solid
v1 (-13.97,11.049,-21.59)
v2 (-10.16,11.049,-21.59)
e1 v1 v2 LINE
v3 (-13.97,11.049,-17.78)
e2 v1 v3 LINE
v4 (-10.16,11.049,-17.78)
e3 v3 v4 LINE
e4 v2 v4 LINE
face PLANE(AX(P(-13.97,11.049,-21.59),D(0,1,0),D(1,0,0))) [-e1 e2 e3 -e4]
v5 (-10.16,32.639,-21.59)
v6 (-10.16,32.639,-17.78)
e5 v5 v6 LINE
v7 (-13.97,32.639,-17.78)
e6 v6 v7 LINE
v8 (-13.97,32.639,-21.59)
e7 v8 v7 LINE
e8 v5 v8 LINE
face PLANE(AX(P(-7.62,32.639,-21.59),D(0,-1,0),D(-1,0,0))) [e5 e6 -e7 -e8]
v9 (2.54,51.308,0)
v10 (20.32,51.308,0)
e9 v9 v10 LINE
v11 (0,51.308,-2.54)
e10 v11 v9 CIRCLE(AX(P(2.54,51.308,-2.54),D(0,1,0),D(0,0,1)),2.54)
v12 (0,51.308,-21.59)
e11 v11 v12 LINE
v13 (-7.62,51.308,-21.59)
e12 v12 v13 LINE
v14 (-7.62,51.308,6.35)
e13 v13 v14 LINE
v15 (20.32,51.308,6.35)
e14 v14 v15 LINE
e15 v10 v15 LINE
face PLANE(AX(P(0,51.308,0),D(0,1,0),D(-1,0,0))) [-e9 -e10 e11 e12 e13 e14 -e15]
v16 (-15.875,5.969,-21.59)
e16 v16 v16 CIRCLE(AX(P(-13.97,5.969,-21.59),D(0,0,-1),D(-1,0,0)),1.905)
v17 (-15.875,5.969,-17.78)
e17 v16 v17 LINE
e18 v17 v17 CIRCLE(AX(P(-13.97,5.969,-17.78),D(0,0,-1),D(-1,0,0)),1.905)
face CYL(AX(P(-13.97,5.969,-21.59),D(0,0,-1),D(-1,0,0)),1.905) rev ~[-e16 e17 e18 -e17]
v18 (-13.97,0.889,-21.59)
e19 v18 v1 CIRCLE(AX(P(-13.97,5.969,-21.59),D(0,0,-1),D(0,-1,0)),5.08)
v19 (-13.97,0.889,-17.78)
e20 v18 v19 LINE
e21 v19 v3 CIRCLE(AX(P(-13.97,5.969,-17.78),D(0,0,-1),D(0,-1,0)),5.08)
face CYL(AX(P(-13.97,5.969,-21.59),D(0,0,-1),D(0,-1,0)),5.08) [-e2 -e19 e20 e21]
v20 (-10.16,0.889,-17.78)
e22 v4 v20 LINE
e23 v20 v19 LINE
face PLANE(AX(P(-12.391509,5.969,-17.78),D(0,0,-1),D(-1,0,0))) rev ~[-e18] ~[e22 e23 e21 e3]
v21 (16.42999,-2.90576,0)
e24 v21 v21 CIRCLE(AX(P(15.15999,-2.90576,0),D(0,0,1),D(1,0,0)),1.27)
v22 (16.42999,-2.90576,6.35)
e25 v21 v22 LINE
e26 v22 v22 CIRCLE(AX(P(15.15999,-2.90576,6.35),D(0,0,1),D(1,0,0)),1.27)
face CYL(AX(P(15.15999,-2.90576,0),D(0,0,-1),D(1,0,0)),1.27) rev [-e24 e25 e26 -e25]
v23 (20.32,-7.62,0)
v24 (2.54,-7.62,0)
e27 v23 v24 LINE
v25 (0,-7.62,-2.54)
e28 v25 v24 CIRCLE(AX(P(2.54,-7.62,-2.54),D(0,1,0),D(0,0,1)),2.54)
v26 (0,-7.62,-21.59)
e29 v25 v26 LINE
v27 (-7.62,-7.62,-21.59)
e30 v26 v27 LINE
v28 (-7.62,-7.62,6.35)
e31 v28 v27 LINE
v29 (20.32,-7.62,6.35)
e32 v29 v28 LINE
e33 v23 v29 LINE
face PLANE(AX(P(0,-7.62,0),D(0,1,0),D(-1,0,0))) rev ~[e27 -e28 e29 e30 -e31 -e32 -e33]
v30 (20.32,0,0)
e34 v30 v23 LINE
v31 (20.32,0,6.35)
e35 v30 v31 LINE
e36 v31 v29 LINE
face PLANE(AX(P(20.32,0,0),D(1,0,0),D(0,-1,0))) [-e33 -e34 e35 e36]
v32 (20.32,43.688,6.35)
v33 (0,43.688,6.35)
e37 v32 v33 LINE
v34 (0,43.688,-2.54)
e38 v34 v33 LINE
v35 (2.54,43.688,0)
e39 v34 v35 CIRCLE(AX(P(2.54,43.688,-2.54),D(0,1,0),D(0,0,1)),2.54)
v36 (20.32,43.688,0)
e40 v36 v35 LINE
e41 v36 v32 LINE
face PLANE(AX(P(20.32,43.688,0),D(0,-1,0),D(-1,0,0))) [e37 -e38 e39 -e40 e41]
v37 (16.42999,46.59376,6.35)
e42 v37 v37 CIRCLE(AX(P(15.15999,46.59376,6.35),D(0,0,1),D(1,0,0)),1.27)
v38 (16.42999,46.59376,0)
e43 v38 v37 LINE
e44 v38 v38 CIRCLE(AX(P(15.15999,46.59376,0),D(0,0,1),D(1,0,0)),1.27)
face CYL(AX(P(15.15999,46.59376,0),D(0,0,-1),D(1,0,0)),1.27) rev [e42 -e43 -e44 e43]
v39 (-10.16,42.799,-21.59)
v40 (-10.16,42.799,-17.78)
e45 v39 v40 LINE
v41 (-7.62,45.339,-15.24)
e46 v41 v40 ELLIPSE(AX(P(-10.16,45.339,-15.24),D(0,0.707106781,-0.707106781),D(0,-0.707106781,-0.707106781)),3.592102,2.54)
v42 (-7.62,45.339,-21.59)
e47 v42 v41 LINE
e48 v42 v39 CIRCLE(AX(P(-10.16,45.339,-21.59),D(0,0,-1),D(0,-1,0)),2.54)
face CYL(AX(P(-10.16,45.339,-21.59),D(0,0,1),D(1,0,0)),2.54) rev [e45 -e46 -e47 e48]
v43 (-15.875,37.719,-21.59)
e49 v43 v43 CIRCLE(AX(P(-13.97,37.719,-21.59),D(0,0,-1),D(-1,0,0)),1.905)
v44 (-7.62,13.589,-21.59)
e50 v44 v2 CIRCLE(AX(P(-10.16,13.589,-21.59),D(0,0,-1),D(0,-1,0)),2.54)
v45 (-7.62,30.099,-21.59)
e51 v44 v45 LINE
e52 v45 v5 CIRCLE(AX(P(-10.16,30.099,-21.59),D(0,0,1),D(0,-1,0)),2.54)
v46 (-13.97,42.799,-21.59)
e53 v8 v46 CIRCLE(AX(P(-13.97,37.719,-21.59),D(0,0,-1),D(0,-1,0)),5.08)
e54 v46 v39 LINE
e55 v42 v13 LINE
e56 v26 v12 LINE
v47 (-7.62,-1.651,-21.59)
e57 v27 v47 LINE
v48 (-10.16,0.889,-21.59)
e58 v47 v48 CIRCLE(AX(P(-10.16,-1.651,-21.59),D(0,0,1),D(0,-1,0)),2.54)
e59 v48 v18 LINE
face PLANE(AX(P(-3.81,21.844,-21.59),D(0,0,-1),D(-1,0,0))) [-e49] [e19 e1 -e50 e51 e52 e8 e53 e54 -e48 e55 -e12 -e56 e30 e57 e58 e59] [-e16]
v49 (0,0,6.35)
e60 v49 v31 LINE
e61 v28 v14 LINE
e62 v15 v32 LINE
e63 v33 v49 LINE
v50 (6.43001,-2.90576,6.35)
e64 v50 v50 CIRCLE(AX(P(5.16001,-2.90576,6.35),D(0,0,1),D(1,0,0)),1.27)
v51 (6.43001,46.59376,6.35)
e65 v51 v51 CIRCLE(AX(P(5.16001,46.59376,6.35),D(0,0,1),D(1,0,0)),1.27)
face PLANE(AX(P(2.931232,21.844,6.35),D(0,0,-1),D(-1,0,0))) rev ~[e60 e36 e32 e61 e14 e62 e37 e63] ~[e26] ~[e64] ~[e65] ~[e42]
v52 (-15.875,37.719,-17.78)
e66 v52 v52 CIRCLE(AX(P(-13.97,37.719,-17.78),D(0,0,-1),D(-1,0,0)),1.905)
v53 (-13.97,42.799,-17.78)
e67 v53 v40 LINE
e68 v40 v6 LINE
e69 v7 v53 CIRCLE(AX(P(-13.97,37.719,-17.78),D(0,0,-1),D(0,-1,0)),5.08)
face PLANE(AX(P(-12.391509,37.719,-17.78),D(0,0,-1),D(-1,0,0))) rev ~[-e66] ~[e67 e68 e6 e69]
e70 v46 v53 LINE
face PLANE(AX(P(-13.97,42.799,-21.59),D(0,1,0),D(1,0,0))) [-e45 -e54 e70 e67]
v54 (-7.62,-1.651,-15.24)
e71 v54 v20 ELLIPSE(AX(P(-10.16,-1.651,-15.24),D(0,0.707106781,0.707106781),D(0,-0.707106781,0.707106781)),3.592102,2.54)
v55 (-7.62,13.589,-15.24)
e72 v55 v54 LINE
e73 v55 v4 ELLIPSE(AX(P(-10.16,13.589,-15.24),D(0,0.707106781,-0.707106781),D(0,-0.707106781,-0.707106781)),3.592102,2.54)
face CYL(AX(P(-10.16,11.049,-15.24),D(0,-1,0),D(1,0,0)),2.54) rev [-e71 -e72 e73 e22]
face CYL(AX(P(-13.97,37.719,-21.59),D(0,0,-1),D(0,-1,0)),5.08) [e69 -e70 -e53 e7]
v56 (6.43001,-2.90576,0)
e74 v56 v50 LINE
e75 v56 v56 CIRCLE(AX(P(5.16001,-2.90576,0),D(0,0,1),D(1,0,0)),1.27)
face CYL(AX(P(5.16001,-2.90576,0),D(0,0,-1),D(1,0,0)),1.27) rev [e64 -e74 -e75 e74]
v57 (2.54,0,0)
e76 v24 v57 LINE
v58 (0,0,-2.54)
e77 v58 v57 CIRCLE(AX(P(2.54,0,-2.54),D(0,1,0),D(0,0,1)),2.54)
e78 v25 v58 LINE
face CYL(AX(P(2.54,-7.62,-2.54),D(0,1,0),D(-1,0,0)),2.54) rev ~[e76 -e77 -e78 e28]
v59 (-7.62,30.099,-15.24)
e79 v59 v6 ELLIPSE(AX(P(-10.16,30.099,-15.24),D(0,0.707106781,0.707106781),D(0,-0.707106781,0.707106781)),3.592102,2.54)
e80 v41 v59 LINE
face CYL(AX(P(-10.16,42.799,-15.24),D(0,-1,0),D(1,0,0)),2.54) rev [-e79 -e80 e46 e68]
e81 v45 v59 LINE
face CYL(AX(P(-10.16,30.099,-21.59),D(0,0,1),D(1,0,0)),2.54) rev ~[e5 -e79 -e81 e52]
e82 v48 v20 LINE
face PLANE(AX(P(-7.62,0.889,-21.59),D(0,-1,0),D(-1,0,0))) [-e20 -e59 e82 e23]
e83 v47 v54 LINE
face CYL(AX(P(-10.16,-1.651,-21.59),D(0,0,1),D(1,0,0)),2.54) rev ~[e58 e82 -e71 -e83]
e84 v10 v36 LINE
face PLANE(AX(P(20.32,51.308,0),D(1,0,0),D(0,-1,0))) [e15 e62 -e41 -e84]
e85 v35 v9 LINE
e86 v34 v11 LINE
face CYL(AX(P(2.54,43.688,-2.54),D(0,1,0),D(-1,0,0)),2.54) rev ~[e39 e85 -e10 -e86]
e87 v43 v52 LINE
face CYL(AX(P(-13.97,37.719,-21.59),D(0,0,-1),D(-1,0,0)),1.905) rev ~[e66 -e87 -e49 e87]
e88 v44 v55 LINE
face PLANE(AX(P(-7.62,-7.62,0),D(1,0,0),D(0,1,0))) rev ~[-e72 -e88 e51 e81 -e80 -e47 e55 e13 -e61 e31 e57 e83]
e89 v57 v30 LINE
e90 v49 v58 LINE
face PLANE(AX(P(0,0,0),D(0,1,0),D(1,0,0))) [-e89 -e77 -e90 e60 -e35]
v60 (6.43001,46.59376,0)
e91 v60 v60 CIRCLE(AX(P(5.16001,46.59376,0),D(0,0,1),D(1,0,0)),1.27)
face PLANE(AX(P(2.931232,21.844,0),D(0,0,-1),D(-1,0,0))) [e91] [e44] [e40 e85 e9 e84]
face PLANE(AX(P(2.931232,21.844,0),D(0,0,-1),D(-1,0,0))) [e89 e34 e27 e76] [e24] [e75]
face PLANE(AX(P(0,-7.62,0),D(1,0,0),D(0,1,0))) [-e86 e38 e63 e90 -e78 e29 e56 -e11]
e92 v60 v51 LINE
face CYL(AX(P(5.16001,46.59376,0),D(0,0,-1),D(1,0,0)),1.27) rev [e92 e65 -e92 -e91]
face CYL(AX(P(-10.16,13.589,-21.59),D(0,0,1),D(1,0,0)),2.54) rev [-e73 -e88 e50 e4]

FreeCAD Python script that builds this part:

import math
import FreeCAD as App
import Part
import Sketcher
Q = App.Units.Quantity


def edges_at(feature, points):
    """Names of the edges that pass closest to the given points."""
    edges = feature.Shape.Edges
    near = lambda p: min(range(len(edges)), key=lambda i: edges[i].distToShape(Part.Vertex(*p))[0])
    return sorted({f"Edge{near(p) + 1}" for p in points})


def add_polygon(sketch, points):
    """Adds a closed chain of lines whose ends are joined by coincident constraints."""
    first, n = sketch.GeometryCount, len(points)
    for a, b in zip(points, points[1:] + points[:1]):
        sketch.addGeometry(Part.LineSegment(App.Vector(*a, 0), App.Vector(*b, 0)), False)
    for i in range(n):
        sketch.addConstraint(Sketcher.Constraint("Coincident", first + i, 2, first + (i + 1) % n, 1))

doc = App.newDocument("Part")
body = doc.addObject("PartDesign::Body", "Body")

# Sketch on XY plane
sketch1 = body.newObject("Sketcher::SketchObject", "Sketch")
sketch1.AttachmentSupport = (doc.getObject("XY_Plane"), [""])
sketch1.MapMode = "FlatFace"
add_polygon(sketch1, [(20.3, 0), (0, 0), (0, 43.7), (20.3, 43.7), (20.3, 51.3), (-7.6, 51.3), (-7.6, -7.6), (20.3, -7.6)])  # lines 0-7
sketch1.addGeometry(Part.Circle(App.Vector(15.2, -2.9, 0), App.Vector(0, 0, 1), 1.3), False)  # 8
sketch1.addGeometry(Part.Circle(App.Vector(5.2, -2.9, 0), App.Vector(0, 0, 1), 1.3), False)  # 9
sketch1.addGeometry(Part.Circle(App.Vector(15.2, 46.6, 0), App.Vector(0, 0, 1), 1.3), False)  # 10
sketch1.addGeometry(Part.Circle(App.Vector(5.2, 46.6, 0), App.Vector(0, 0, 1), 1.3), False)  # 11
sketch1.addConstraint([
    Sketcher.Constraint("Horizontal", 0),
    Sketcher.Constraint("Vertical", 1),
    Sketcher.Constraint("Horizontal", 2),
    Sketcher.Constraint("Vertical", 3),
    Sketcher.Constraint("Horizontal", 4),
    Sketcher.Constraint("Vertical", 5),
    Sketcher.Constraint("Horizontal", 6),
    Sketcher.Constraint("Vertical", 7),
    Sketcher.Constraint("Coincident", 0, 2, -1, 1),
    Sketcher.Constraint("Equal", 8, 9),
    Sketcher.Constraint("Equal", 9, 10),
    Sketcher.Constraint("Equal", 10, 11),
    Sketcher.Constraint("Horizontal", 8, 3, 9, 3),
    Sketcher.Constraint("Horizontal", 10, 3, 11, 3),
    Sketcher.Constraint("Vertical", 8, 3, 10, 3),
    Sketcher.Constraint("Vertical", 9, 3, 11, 3),
    Sketcher.Constraint("Vertical", 3, 2, 6, 2),
    Sketcher.Constraint("Equal", 3, 7),
    Sketcher.Constraint("Diameter", 8, Q("0.1 in")),
    Sketcher.Constraint("DistanceX", 0, 2, 0, 1, Q("0.8 in")),
    Sketcher.Constraint("DistanceX", 4, 2, 4, 1, Q("1.1 in")),
    Sketcher.Constraint("DistanceY", 3, 1, 3, 2, Q("0.3 in")),
    Sketcher.Constraint("DistanceY", 1, 1, 1, 2, Q("1.72 in")),
    Sketcher.Constraint("DistanceY", 8, 3, -1, 1, Q("0.1144 in")),
    Sketcher.Constraint("DistanceY", -1, 1, 10, 3, Q("1.8344 in")),
    Sketcher.Constraint("DistanceX", 9, 3, 8, 3, Q("0.3937 in")),
    Sketcher.Constraint("DistanceX", -1, 1, 8, 3, Q("15.15999 mm")),
])
pad1 = body.newObject("PartDesign::Pad", "Pad")
pad1.Profile = sketch1
pad1.Length = Q("0.25 in")

# Sketch on XY plane
sketch2 = body.newObject("Sketcher::SketchObject", "Sketch001")
sketch2.AttachmentSupport = (doc.getObject("XY_Plane"), [""])
sketch2.MapMode = "FlatFace"
add_polygon(sketch2, [(0, 51), (0, -8), (-8, -8), (-8, 51)])  # lines 0-3
sketch2.addConstraint([
    Sketcher.Constraint("Vertical", 0),
    Sketcher.Constraint("Horizontal", 1),
    Sketcher.Constraint("Vertical", 2),
    Sketcher.Constraint("Horizontal", 3),
    Sketcher.Constraint("PointOnObject", 0, 2, -2),
    Sketcher.Constraint("DistanceX", 1, 2, 1, 1, Q("0.3 in")),
    Sketcher.Constraint("DistanceY", 0, 2, 0, 1, Q("2.32 in")),
    Sketcher.Constraint("DistanceY", 0, 2, -1, 1, Q("0.3 in")),
])
pad2 = body.newObject("PartDesign::Pad", "Pad001")
pad2.Profile = sketch2
pad2.Length = Q("0.85 in")
pad2.Reversed = True

# Sketch on XY plane
sketch3 = body.newObject("Sketcher::SketchObject", "Sketch002")
sketch3.AttachmentSupport = (doc.getObject("XY_Plane"), [""])
sketch3.MapMode = "FlatFace"
sketch3.AttachmentOffset = App.Placement(App.Vector(0, 0, -0.85 * 25.4), App.Rotation())
sketch3.addGeometry([
    Part.LineSegment(App.Vector(-14, 42.8, 0), App.Vector(-7.6, 42.8, 0)),  # 0
    Part.LineSegment(App.Vector(-7.6, 42.8, 0), App.Vector(-7.6, 32.6, 0)),  # 1
    Part.LineSegment(App.Vector(-7.6, 32.6, 0), App.Vector(-14, 32.6, 0)),  # 2
    Part.ArcOfCircle(Part.Circle(App.Vector(-14, 37.7, 0), App.Vector(0, 0, 1), 5.1), math.radians(90), math.radians(270)),  # 3
    Part.Circle(App.Vector(-14, 37.7, 0), App.Vector(0, 0, 1), 1.9),  # 4
    Part.LineSegment(App.Vector(-14, 11, 0), App.Vector(-7.6, 11, 0)),  # 5
    Part.LineSegment(App.Vector(-7.6, 11, 0), App.Vector(-7.6, 0.9, 0)),  # 6
    Part.LineSegment(App.Vector(-7.6, 0.9, 0), App.Vector(-14, 0.9, 0)),  # 7
    Part.ArcOfCircle(Part.Circle(App.Vector(-14, 6, 0), App.Vector(0, 0, 1), 5.1), math.radians(90), math.radians(270)),  # 8
    Part.Circle(App.Vector(-14, 6, 0), App.Vector(0, 0, 1), 1.9),  # 9
], False)
sketch3.addConstraint([
    Sketcher.Constraint("Coincident", 0, 2, 1, 1),
    Sketcher.Constraint("Coincident", 1, 2, 2, 1),
    Sketcher.Constraint("Tangent", 2, 2, 3, 2),
    Sketcher.Constraint("Tangent", 3, 1, 0, 1),
    Sketcher.Constraint("Coincident", 5, 2, 6, 1),
    Sketcher.Constraint("Coincident", 6, 2, 7, 1),
    Sketcher.Constraint("Tangent", 7, 2, 8, 2),
    Sketcher.Constraint("Tangent", 8, 1, 5, 1),
    Sketcher.Constraint("Horizontal", 0),
    Sketcher.Constraint("Vertical", 1),
    Sketcher.Constraint("Horizontal", 2),
    Sketcher.Constraint("Horizontal", 5),
    Sketcher.Constraint("Vertical", 6),
    Sketcher.Constraint("Horizontal", 7),
    Sketcher.Constraint("Coincident", 4, 3, 3, 3),
    Sketcher.Constraint("Coincident", 9, 3, 8, 3),
    Sketcher.Constraint("Equal", 3, 8),
    Sketcher.Constraint("Equal", 4, 9),
    Sketcher.Constraint("Vertical", 4, 3, 8, 3),
    Sketcher.Constraint("Vertical", 1, 2, 5, 2),
    Sketcher.Constraint("Radius", 3, Q("0.2 in")),
    Sketcher.Constraint("Diameter", 4, Q("0.15 in")),
    Sketcher.Constraint("DistanceX", 0, 1, 0, 2, Q("0.25 in")),
    Sketcher.Constraint("DistanceX", 0, 2, -1, 1, Q("0.3 in")),
    Sketcher.Constraint("DistanceY", 8, 3, 3, 3, Q("1.25 in")),
    Sketcher.Constraint("DistanceY", -1, 1, 3, 3, Q("1.485 in")),
])
pad3 = body.newObject("PartDesign::Pad", "Pad002")
pad3.Profile = sketch3
pad3.Length = Q("0.15 in")
doc.recompute()

fillet = body.newObject("PartDesign::Fillet", "Fillet")
fillet.Base = (pad3, edges_at(pad3, [
    (0, -3.81, 0),
    (0, 47.498, 0),
    (-7.62, 37.719, -17.78),
    (-7.62, 32.639, -19.685),
    (-7.62, 42.799, -19.685),
    (-7.62, 5.969, -17.78),
    (-7.62, 0.889, -19.685),
    (-7.62, 11.049, -19.685),
]))
fillet.Radius = Q("0.1 in")

doc.recompute()
